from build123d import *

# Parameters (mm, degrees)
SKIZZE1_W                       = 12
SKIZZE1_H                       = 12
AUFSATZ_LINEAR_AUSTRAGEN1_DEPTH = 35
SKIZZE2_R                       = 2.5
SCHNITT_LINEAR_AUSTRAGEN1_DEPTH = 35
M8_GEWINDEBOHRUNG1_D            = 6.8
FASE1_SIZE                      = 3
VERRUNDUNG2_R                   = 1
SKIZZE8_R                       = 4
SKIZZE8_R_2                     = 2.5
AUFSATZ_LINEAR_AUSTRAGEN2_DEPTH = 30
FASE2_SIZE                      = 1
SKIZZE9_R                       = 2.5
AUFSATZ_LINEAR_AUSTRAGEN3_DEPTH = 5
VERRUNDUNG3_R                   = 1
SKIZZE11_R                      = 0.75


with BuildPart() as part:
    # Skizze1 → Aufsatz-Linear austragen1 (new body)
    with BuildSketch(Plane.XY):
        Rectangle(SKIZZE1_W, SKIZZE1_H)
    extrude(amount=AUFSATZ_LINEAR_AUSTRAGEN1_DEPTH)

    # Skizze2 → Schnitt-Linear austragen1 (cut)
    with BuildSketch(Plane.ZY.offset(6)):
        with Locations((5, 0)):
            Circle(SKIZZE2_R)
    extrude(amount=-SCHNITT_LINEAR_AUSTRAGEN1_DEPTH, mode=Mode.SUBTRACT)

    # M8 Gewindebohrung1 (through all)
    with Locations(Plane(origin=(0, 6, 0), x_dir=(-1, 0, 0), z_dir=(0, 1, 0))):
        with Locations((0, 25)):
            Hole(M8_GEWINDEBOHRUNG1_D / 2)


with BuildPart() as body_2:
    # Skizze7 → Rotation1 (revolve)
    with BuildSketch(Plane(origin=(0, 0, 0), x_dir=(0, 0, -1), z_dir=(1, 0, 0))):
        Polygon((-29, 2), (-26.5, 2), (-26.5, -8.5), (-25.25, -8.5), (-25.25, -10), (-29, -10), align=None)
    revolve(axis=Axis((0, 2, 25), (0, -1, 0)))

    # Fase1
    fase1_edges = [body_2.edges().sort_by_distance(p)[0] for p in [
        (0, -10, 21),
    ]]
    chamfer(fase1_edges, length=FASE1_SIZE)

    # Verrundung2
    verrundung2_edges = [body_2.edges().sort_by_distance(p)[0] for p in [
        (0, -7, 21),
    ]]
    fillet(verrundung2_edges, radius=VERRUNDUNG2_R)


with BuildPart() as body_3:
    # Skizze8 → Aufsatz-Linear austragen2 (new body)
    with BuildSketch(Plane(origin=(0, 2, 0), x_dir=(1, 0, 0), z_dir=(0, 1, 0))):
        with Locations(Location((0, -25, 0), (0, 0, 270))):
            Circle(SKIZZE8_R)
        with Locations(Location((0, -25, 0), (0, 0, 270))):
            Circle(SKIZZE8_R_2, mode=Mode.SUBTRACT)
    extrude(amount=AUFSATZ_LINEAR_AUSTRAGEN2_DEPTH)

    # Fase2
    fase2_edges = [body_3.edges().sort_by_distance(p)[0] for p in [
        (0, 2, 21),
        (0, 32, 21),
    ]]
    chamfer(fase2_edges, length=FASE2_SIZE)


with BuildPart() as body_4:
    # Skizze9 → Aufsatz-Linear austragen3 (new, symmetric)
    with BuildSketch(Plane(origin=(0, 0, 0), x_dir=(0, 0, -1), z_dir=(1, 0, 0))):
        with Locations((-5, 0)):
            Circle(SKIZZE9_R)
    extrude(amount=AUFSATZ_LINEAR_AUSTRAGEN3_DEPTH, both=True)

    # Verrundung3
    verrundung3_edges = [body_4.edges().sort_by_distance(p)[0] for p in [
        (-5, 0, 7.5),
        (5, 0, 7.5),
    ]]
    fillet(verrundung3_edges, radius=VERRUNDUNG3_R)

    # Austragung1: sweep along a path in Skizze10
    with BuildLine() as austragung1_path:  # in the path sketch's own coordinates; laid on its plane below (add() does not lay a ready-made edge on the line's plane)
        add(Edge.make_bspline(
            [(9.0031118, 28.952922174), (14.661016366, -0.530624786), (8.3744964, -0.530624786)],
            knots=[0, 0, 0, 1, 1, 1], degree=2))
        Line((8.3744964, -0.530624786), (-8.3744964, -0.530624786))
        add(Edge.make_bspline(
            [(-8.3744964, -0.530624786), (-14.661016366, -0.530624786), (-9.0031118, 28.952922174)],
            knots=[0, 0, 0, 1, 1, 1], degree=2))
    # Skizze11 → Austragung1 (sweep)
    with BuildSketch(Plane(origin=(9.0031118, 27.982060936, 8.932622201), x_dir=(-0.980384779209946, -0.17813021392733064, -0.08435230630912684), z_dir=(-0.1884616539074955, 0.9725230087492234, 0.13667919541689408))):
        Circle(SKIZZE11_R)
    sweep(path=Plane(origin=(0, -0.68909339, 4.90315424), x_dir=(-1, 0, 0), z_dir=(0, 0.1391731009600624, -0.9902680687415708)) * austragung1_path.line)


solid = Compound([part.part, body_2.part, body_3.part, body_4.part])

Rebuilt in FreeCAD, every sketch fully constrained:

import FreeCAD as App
import Part
import Sketcher


def edges_at(feature, points):
    """Names of the edges that pass closest to the given points."""
    edges = feature.Shape.Edges
    near = lambda p: min(range(len(edges)), key=lambda i: edges[i].distToShape(Part.Vertex(*p))[0])
    return sorted({f"Edge{near(p) + 1}" for p in points})

doc = App.newDocument("Part")
body = doc.addObject("PartDesign::Body", "Body")

# Sketch on XY plane
sketch1 = body.newObject("Sketcher::SketchObject", "Sketch")
sketch1.AttachmentSupport = (doc.getObject("XY_Plane"), [""])
sketch1.MapMode = "FlatFace"
sketch1.addGeometry([
    Part.LineSegment(App.Vector(-6, 6, 0), App.Vector(-6, -6, 0)),
    Part.LineSegment(App.Vector(-6, -6, 0), App.Vector(6, -6, 0)),
    Part.LineSegment(App.Vector(6, -6, 0), App.Vector(6, 6, 0)),
    Part.LineSegment(App.Vector(6, 6, 0), App.Vector(-6, 6, 0)),
], False)
sketch1.addConstraint([
    Sketcher.Constraint("Coincident", 0, 2, 1, 1),
    Sketcher.Constraint("Coincident", 1, 2, 2, 1),
    Sketcher.Constraint("Coincident", 2, 2, 3, 1),
    Sketcher.Constraint("Coincident", 3, 2, 0, 1),
    Sketcher.Constraint("Vertical", 0),
    Sketcher.Constraint("Horizontal", 1),
    Sketcher.Constraint("Vertical", 2),
    Sketcher.Constraint("Horizontal", 3),
    Sketcher.Constraint("Symmetric", 0, 2, 2, 2, -1, 1),
    Sketcher.Constraint("Equal", 3, 0),
    Sketcher.Constraint("DistanceX", 1, 1, 1, 2, 12.0),
])
pad1 = body.newObject("PartDesign::Pad", "Pad")
pad1.Profile = sketch1
pad1.Length = 35

# Sketch on YZ plane
sketch2 = body.newObject("Sketcher::SketchObject", "Sketch001")
sketch2.AttachmentSupport = (doc.getObject("YZ_Plane"), [""])
sketch2.MapMode = "FlatFace"
sketch2.AttachmentOffset = App.Placement(App.Vector(0, 0, -6), App.Rotation())
sketch2.addGeometry(Part.Circle(App.Vector(0, 5, 0), App.Vector(0, 0, 1), 2.5), False)
sketch2.addConstraint([
    Sketcher.Constraint("PointOnObject", 0, 3, -2),
    Sketcher.Constraint("Diameter", 0, 5.0),
    Sketcher.Constraint("DistanceY", -1, 1, 0, 3, 5.0),
])
pocket1 = body.newObject("PartDesign::Pocket", "Pocket")
pocket1.Profile = sketch2
pocket1.Length = 35
pocket1.Reversed = True

# Sketch on XZ plane
sketch3 = body.newObject("Sketcher::SketchObject", "Sketch002")
sketch3.AttachmentSupport = (doc.getObject("XZ_Plane"), [""])
sketch3.MapMode = "FlatFace"
sketch3.AttachmentOffset = App.Placement(App.Vector(0, 0, -6), App.Rotation())
sketch3.addGeometry(Part.Circle(App.Vector(0, 25, 0), App.Vector(0, 0, 1), 3.4), False)
sketch3.addConstraint([
    Sketcher.Constraint("PointOnObject", 0, 3, -2),
    Sketcher.Constraint("Diameter", 0, 6.8),
    Sketcher.Constraint("DistanceY", -1, 1, 0, 3, 25.0),
])
doc.recompute()
hole = body.newObject("PartDesign::Hole", "Hole")
hole.Profile = sketch3
hole.ThreadType = "None"
hole.Diameter = 6.8
hole.DepthType = "ThroughAll"
hole.Reversed = True
body2 = doc.addObject("PartDesign::Body", "Body001")

# Sketch on YZ plane
sketch4 = body2.newObject("Sketcher::SketchObject", "Sketch003")
sketch4.AttachmentSupport = (doc.getObject("YZ_Plane001"), [""])
sketch4.MapMode = "FlatFace"
sketch4.addGeometry([
    Part.LineSegment(App.Vector(2, 26.5, 0), App.Vector(2, 29, 0)),  # 0
    Part.LineSegment(App.Vector(2, 29, 0), App.Vector(-10, 29, 0)),  # 1
    Part.LineSegment(App.Vector(-10, 29, 0), App.Vector(-10, 25.2, 0)),  # 2
    Part.LineSegment(App.Vector(-10, 25.2, 0), App.Vector(-8.5, 25.2, 0)),  # 3
    Part.LineSegment(App.Vector(-8.5, 25.2, 0), App.Vector(-8.5, 26.5, 0)),  # 4
    Part.LineSegment(App.Vector(-8.5, 26.5, 0), App.Vector(2, 26.5, 0)),  # 5
], False)
sketch4.addGeometry(Part.LineSegment(App.Vector(2, 25, 0), App.Vector(-10, 25, 0)), True)  # axis
sketch4.addConstraint([
    Sketcher.Constraint("Coincident", 0, 2, 1, 1),
    Sketcher.Constraint("Coincident", 1, 2, 2, 1),
    Sketcher.Constraint("Coincident", 2, 2, 3, 1),
    Sketcher.Constraint("Coincident", 3, 2, 4, 1),
    Sketcher.Constraint("Coincident", 4, 2, 5, 1),
    Sketcher.Constraint("Coincident", 5, 2, 0, 1),
    Sketcher.Constraint("Vertical", 0),
    Sketcher.Constraint("Horizontal", 1),
    Sketcher.Constraint("Vertical", 2),
    Sketcher.Constraint("Horizontal", 3),
    Sketcher.Constraint("Vertical", 4),
    Sketcher.Constraint("Horizontal", 5),
    Sketcher.Constraint("Horizontal", 6),
    Sketcher.Constraint("Vertical", 5, 2, 6, 1),
    Sketcher.Constraint("Vertical", 2, 2, 6, 2),
    Sketcher.Constraint("DistanceX", 1, 2, 1, 1, 12.0),
    Sketcher.Constraint("DistanceX", 3, 1, 3, 2, 1.5),
    Sketcher.Constraint("DistanceY", 0, 1, 0, 2, 2.5),
    Sketcher.Constraint("DistanceX", -1, 1, 0, 2, 2.0),
    Sketcher.Constraint("DistanceY", -1, 1, 0, 2, 29.0),
    Sketcher.Constraint("DistanceY", -1, 1, 6, 1, 25.0),
    Sketcher.Constraint("DistanceY", 2, 2, 2, 1, 3.75),
])
revolution = body2.newObject("PartDesign::Revolution", "Revolution")
revolution.Profile = sketch4
revolution.ReferenceAxis = (sketch4, ["Axis0"])
revolution.Angle = 360
doc.recompute()

chamfer = body2.newObject("PartDesign::Chamfer", "Chamfer")
chamfer.Base = (revolution, edges_at(revolution, [(0, -10, 21)]))
chamfer.Size = 3
doc.recompute()

fillet = body2.newObject("PartDesign::Fillet", "Fillet")
fillet.Base = (chamfer, edges_at(chamfer, [(0, -7, 21)]))
fillet.Radius = 1
body3 = doc.addObject("PartDesign::Body", "Body002")

# Sketch on XZ plane
sketch5 = body3.newObject("Sketcher::SketchObject", "Sketch004")
sketch5.AttachmentSupport = (doc.getObject("XZ_Plane002"), [""])
sketch5.MapMode = "FlatFace"
sketch5.AttachmentOffset = App.Placement(App.Vector(0, 0, -2), App.Rotation())
sketch5.addGeometry([
    Part.Circle(App.Vector(0, 25, 0), App.Vector(0, 0, 1), 4),
    Part.Circle(App.Vector(0, 25, 0), App.Vector(0, 0, 1), 2.5),
], False)
sketch5.addConstraint([
    Sketcher.Constraint("Coincident", 1, 3, 0, 3),
    Sketcher.Constraint("PointOnObject", 0, 3, -2),
    Sketcher.Constraint("Diameter", 0, 8.0),
    Sketcher.Constraint("Diameter", 1, 5.0),
    Sketcher.Constraint("DistanceY", -1, 1, 0, 3, 25.0),
])
pad2 = body3.newObject("PartDesign::Pad", "Pad001")
pad2.Profile = sketch5
pad2.Length = 30
pad2.Reversed = True
doc.recompute()

chamfer2 = body3.newObject("PartDesign::Chamfer", "Chamfer001")
chamfer2.Base = (pad2, edges_at(pad2, [(0, 2, 21), (0, 32, 21)]))
chamfer2.Size = 1
body4 = doc.addObject("PartDesign::Body", "Body003")

# Sketch on YZ plane
sketch6 = body4.newObject("Sketcher::SketchObject", "Sketch005")
sketch6.AttachmentSupport = (doc.getObject("YZ_Plane003"), [""])
sketch6.MapMode = "FlatFace"
sketch6.addGeometry(Part.Circle(App.Vector(0, 5, 0), App.Vector(0, 0, 1), 2.5), False)
sketch6.addConstraint([
    Sketcher.Constraint("PointOnObject", 0, 3, -2),
    Sketcher.Constraint("Diameter", 0, 5.0),
    Sketcher.Constraint("DistanceY", -1, 1, 0, 3, 5.0),
])
pad3 = body4.newObject("PartDesign::Pad", "Pad002")
pad3.Profile = sketch6
pad3.Length = 10
pad3.Midplane = True
doc.recompute()

fillet2 = body4.newObject("PartDesign::Fillet", "Fillet001")
fillet2.Base = (pad3, edges_at(pad3, [(-5, 0, 7.5), (5, 0, 7.5)]))
fillet2.Radius = 1

# Sketch on an angled plane
sketch7 = body4.newObject("Sketcher::SketchObject", "Sketch006")
sketch7.Placement = App.Placement(App.Vector(9.003112, 27.982061, 8.932622), App.Rotation(App.Vector(-0.980384779, -0.178130214, -0.084352306), App.Vector(-0.057687864, -0.149895377, 0.98701747), App.Vector(-0.188461654, 0.972523009, 0.136679195), "ZXY"))
sketch7.addGeometry(Part.Circle(App.Vector(0, 0, 0), App.Vector(0, 0, 1), 0.8), False)
sketch7.addConstraint([
    Sketcher.Constraint("Coincident", 0, 3, -1, 1),
    Sketcher.Constraint("Diameter", 0, 1.5),
])

# Sketch on an angled plane
sketch8 = body4.newObject("Sketcher::SketchObject", "Sketch007")
sketch8.Placement = App.Placement(App.Vector(0, -0.689093, 4.903154), App.Rotation(App.Vector(0, 0.990268069, 0.139173101), App.Vector(1.000000001, 0, 0), App.Vector(0, 0.139173101, -0.990268069), "ZXY"))
sketch8.addGeometry([
    Part.BSplineCurve([App.Vector(28.952922, -9.003112, 0), App.Vector(-0.530625, -14.661016, 0), App.Vector(-0.530625, -8.374496, 0)], [3, 3], [0, 1], False, 2, [1, 1, 1], False),
    Part.LineSegment(App.Vector(-0.530625, -8.374496, 0), App.Vector(-0.530625, 8.374496, 0)),
    Part.BSplineCurve([App.Vector(-0.530625, 8.374496, 0), App.Vector(-0.530625, 14.661016, 0), App.Vector(28.952922, 9.003112, 0)], [3, 3], [0, 1], False, 2, [1, 1, 1], False),
], False)
sketch8.addConstraint([
    Sketcher.Constraint("Block", 0),
    Sketcher.Constraint("Block", 2),
    Sketcher.Constraint("Coincident", 0, 2, 1, 1),
    Sketcher.Constraint("Coincident", 1, 2, 2, 1),
])
doc.recompute()

additivepipe = body4.newObject("PartDesign::AdditivePipe", "AdditivePipe")
additivepipe.Profile = sketch7
additivepipe.Spine = (sketch8, ["Edge1", "Edge2", "Edge3"])

doc.recompute()
